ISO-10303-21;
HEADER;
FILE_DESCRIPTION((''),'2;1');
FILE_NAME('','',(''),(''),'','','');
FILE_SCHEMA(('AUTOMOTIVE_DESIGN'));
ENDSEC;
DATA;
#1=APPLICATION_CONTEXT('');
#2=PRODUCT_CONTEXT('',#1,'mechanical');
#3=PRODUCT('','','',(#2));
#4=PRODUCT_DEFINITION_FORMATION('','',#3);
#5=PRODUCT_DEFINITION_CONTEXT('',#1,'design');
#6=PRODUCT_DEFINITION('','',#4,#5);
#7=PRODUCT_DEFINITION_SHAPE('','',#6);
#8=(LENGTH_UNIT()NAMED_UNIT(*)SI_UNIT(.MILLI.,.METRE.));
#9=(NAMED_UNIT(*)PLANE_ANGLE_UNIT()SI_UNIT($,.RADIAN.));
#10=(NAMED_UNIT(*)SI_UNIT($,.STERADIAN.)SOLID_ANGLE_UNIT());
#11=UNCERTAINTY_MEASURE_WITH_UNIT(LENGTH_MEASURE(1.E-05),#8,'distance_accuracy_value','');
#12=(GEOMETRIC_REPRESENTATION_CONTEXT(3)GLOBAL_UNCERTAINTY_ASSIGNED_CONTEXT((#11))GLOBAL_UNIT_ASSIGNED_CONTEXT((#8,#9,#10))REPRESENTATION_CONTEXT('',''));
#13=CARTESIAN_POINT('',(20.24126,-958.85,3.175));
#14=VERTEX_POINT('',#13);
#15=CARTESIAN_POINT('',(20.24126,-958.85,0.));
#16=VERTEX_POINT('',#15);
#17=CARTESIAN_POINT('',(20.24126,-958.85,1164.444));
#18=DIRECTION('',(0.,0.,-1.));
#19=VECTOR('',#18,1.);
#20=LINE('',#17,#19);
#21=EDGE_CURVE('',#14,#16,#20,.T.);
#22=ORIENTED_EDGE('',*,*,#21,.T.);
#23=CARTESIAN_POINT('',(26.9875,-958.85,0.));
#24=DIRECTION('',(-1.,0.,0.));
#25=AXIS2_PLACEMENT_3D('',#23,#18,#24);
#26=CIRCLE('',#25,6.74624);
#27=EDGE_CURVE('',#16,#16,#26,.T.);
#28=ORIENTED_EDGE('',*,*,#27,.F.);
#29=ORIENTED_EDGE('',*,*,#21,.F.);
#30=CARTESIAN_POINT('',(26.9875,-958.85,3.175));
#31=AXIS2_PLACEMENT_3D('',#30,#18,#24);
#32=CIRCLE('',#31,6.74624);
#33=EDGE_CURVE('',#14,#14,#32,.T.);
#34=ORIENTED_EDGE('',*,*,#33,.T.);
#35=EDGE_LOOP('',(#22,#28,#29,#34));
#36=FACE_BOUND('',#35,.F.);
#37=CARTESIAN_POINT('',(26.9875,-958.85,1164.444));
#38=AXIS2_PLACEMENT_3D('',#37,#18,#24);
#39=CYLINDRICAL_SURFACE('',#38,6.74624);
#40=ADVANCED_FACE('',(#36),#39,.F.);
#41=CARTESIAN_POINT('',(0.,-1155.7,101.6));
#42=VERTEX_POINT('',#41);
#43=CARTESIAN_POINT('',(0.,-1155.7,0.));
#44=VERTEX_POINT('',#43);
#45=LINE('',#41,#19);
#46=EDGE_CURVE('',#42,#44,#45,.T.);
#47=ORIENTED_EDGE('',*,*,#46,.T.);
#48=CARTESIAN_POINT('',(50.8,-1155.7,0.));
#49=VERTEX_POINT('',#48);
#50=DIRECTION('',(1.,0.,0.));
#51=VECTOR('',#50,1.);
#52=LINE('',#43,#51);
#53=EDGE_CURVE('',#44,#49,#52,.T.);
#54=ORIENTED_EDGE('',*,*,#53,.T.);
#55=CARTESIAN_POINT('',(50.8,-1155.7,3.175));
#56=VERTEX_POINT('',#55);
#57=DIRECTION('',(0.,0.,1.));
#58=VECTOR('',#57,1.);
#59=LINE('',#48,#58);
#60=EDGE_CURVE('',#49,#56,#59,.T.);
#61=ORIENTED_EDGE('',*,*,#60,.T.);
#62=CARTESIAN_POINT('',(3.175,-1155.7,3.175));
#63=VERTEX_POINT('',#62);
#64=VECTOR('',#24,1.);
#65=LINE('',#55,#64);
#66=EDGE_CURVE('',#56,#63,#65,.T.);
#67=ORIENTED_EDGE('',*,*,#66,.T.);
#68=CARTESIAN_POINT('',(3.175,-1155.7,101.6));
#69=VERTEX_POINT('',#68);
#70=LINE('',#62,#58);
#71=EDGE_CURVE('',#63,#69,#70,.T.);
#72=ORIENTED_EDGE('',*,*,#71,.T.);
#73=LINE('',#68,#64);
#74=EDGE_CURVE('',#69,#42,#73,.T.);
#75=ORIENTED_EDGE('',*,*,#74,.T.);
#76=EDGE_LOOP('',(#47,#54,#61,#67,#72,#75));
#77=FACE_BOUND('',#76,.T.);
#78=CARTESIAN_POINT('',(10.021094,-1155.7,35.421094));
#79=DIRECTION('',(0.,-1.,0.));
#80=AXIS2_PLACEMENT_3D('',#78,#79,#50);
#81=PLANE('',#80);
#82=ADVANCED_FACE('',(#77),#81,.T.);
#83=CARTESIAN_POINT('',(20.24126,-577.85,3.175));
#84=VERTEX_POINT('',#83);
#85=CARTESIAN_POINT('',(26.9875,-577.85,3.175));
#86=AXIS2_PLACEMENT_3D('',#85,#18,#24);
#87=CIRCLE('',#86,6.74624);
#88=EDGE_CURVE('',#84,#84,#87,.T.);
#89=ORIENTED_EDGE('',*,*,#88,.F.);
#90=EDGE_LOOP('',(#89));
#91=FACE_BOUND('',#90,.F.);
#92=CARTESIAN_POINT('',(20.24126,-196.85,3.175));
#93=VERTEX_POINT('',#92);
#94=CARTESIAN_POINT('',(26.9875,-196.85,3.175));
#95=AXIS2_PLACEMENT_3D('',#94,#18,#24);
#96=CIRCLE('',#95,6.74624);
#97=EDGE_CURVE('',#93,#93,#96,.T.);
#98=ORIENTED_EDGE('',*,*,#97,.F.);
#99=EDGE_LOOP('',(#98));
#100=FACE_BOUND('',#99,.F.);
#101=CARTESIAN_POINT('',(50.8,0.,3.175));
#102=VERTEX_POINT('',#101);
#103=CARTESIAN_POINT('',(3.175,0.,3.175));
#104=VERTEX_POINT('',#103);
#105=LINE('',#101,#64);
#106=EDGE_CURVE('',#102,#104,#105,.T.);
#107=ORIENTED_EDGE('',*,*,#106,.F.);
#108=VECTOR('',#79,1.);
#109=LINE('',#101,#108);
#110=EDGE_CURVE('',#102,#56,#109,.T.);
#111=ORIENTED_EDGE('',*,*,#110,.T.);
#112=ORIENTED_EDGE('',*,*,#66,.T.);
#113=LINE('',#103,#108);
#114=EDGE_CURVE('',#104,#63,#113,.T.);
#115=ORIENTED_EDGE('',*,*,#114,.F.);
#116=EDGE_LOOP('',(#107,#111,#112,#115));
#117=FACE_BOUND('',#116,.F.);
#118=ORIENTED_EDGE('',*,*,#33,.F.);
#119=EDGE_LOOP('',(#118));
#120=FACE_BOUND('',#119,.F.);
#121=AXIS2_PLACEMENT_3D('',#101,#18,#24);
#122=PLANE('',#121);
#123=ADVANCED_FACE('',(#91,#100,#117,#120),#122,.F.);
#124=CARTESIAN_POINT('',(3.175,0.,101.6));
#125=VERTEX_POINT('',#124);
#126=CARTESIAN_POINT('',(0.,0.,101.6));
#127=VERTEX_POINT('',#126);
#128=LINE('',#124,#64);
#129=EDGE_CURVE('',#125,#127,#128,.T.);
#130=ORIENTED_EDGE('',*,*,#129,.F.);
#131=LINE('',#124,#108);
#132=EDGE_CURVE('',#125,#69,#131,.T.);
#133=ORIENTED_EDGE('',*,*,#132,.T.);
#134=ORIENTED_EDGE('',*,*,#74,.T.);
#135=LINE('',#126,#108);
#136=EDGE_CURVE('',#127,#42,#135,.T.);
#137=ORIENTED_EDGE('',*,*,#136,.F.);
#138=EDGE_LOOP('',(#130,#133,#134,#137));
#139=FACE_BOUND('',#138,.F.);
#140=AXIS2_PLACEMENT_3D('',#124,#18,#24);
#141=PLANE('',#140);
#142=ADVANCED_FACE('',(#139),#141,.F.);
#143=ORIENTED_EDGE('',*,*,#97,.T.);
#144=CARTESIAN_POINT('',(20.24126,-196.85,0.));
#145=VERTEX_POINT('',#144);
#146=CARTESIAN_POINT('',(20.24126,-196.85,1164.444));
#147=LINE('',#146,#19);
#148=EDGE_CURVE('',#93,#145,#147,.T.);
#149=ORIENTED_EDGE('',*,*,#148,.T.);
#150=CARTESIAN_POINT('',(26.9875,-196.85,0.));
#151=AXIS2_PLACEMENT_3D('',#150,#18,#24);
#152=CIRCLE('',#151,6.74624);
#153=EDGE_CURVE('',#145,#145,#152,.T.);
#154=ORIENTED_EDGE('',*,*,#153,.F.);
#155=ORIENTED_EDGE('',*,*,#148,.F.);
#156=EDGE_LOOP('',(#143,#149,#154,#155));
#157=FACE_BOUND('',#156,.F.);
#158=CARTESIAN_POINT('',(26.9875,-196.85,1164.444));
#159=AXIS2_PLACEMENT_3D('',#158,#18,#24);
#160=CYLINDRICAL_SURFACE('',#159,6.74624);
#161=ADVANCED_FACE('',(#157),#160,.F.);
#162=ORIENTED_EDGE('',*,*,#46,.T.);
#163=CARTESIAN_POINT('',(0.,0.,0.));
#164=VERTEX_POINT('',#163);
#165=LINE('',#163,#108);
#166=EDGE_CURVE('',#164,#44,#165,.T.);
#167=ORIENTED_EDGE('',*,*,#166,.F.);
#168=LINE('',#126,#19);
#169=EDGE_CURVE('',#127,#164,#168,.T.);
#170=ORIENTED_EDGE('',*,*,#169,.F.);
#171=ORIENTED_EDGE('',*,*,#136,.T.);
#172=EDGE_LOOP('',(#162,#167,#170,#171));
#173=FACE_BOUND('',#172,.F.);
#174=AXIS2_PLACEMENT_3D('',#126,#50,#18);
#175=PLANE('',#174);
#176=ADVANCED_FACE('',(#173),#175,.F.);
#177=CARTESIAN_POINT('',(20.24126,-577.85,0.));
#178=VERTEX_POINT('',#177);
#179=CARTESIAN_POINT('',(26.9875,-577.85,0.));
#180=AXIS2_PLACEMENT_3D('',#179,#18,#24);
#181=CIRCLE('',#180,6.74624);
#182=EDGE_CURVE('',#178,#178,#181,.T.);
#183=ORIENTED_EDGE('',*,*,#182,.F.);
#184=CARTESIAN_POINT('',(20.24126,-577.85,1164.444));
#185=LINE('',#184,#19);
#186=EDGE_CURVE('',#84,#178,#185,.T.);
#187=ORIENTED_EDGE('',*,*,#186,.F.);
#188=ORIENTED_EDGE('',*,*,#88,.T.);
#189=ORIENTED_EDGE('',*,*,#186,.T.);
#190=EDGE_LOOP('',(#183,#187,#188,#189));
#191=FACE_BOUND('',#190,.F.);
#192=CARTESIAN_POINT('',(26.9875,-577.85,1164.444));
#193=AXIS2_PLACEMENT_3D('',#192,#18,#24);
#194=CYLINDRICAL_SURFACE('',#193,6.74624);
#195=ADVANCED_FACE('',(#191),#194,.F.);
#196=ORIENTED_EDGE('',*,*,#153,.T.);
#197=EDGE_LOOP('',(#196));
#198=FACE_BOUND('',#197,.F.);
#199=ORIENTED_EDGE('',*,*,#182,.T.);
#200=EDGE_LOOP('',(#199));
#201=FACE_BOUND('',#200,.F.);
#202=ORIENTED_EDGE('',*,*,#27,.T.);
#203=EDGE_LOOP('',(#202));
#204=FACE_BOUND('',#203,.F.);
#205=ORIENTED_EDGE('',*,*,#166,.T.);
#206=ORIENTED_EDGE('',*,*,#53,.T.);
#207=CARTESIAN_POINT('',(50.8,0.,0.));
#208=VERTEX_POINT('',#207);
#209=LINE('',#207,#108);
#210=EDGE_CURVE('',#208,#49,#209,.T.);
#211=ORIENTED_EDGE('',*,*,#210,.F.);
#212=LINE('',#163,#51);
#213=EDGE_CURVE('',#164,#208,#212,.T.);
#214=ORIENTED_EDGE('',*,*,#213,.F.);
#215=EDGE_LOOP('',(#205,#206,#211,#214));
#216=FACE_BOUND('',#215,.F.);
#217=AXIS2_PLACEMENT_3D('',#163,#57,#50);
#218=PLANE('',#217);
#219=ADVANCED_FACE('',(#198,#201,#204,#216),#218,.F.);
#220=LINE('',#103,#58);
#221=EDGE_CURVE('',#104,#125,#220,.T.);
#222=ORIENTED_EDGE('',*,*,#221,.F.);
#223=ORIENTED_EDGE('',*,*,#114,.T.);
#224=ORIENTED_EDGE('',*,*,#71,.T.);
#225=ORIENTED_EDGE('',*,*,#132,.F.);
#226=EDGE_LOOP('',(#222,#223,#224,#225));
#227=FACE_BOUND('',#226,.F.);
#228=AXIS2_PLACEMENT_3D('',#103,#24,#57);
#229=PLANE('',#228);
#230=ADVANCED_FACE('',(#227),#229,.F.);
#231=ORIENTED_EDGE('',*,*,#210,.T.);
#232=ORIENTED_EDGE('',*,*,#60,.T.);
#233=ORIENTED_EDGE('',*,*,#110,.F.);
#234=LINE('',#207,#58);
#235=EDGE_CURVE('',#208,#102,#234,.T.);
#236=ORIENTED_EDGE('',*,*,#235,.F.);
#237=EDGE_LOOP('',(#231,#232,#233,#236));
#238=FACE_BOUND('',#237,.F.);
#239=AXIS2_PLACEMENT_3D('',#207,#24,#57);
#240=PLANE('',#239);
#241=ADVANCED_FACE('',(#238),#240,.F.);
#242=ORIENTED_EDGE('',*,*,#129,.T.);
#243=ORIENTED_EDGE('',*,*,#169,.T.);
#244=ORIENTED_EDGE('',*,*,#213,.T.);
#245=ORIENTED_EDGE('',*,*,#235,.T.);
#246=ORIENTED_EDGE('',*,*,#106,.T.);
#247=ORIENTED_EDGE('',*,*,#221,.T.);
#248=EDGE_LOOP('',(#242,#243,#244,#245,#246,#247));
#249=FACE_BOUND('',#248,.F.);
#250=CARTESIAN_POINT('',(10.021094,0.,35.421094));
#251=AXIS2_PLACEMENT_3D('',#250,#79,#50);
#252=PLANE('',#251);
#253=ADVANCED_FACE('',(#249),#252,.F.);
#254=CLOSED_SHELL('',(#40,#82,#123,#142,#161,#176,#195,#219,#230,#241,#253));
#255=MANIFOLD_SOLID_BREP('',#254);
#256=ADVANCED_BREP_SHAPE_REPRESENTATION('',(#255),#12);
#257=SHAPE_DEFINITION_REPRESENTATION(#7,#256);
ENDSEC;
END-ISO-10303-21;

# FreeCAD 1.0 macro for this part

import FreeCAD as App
import Part
import Sketcher
from FreeCAD import Vector
Q = App.Units.Quantity

doc = App.newDocument("Part")
params = doc.addObject("Spreadsheet::Sheet", "Params")
for row, (alias, value) in enumerate([
    ("sketch1_width", "2 in"),
    ("sketch1_height", "4 in"),
    ("sketch1_width2", "1.875 in"),
    ("pad1_length", "45.5 in"),
    ("hole_diameter", "0.5312 in"),
], start=1):
    params.set(f"A{row}", alias)
    params.set(f"B{row}", "=" + value)
    params.setAlias(f"B{row}", alias)

body = doc.addObject("PartDesign::Body", "Body")

# Sketch on XZ plane
sketch1 = body.newObject("Sketcher::SketchObject", "Sketch")
sketch1.AttachmentSupport = (doc.getObject("XZ_Plane"), [""])
sketch1.MapMode = "FlatFace"
sketch1.addGeometry(Part.LineSegment(Vector(0, 101.6, 0), Vector(0, 0, 0)), False)
sketch1.addGeometry(Part.LineSegment(Vector(0, 0, 0), Vector(50.8, 0, 0)), False)
sketch1.addGeometry(Part.LineSegment(Vector(50.8, 0, 0), Vector(50.8, 3.2, 0)), False)
sketch1.addGeometry(Part.LineSegment(Vector(50.8, 3.2, 0), Vector(3.2, 3.2, 0)), False)
sketch1.addGeometry(Part.LineSegment(Vector(3.2, 3.2, 0), Vector(3.2, 101.6, 0)), False)
sketch1.addGeometry(Part.LineSegment(Vector(3.2, 101.6, 0), Vector(0, 101.6, 0)), False)
sketch1.addConstraint(Sketcher.Constraint("Coincident", 0, 2, 1, 1))
sketch1.addConstraint(Sketcher.Constraint("Coincident", 1, 2, 2, 1))
sketch1.addConstraint(Sketcher.Constraint("Coincident", 2, 2, 3, 1))
sketch1.addConstraint(Sketcher.Constraint("Coincident", 3, 2, 4, 1))
sketch1.addConstraint(Sketcher.Constraint("Coincident", 4, 2, 5, 1))
sketch1.addConstraint(Sketcher.Constraint("Coincident", 5, 2, 0, 1))
sketch1.addConstraint(Sketcher.Constraint("Vertical", 0))
sketch1.addConstraint(Sketcher.Constraint("Horizontal", 1))
sketch1.addConstraint(Sketcher.Constraint("Vertical", 2))
sketch1.addConstraint(Sketcher.Constraint("Horizontal", 3))
sketch1.addConstraint(Sketcher.Constraint("Vertical", 4))
sketch1.addConstraint(Sketcher.Constraint("Horizontal", 5))
sketch1.addConstraint(Sketcher.Constraint("Coincident", 0, 2, -1, 1))
sketch1.addConstraint(Sketcher.Constraint("Equal", 5, 2))
sketch1.addConstraint(Sketcher.Constraint("DistanceX", 1, 1, 1, 2, Q("2 in")))
sketch1.addConstraint(Sketcher.Constraint("DistanceY", 0, 2, 0, 1, Q("4 in")))
sketch1.addConstraint(Sketcher.Constraint("DistanceX", 3, 2, 3, 1, Q("1.875 in")))
sketch1.setExpression("Constraints[14]", "Params.sketch1_width")
sketch1.setExpression("Constraints[15]", "Params.sketch1_height")
sketch1.setExpression("Constraints[16]", "Params.sketch1_width2")
pad1 = body.newObject("PartDesign::Pad", "Pad")
pad1.Profile = sketch1
pad1.setExpression("Length", "Params.pad1_length")

# Sketch on XY plane
sketch2 = body.newObject("Sketcher::SketchObject", "Sketch001")
sketch2.AttachmentSupport = (doc.getObject("XY_Plane"), [""])
sketch2.MapMode = "FlatFace"
sketch2.AttachmentOffset = App.Placement(Vector(0, 0, 0.125 * 25.4), App.Rotation())
sketch2.addGeometry(Part.Circle(Vector(27, -578, 0), Vector(0, 0, 1), 7), False)
sketch2.addGeometry(Part.Circle(Vector(27, -197, 0), Vector(0, 0, 1), 7), False)
sketch2.addGeometry(Part.Circle(Vector(27, -959, 0), Vector(0, 0, 1), 7), False)
sketch2.addConstraint(Sketcher.Constraint("Equal", 0, 1))
sketch2.addConstraint(Sketcher.Constraint("Equal", 1, 2))
sketch2.addConstraint(Sketcher.Constraint("Vertical", 0, 3, 1, 3))
sketch2.addConstraint(Sketcher.Constraint("Vertical", 1, 3, 2, 3))
sketch2.addConstraint(Sketcher.Constraint("DistanceY", 0, 3, 1, 3, Q("15 in")))
sketch2.addConstraint(Sketcher.Constraint("DistanceY", 2, 3, 0, 3, Q("15 in")))
sketch2.addConstraint(Sketcher.Constraint("Diameter", 0, Q("0.5312 in")))
sketch2.addConstraint(Sketcher.Constraint("DistanceY", 0, 3, -1, 1, Q("22.75 in")))
sketch2.addConstraint(Sketcher.Constraint("DistanceX", -1, 1, 0, 3, Q("1.0625 in")))
doc.recompute()
hole = body.newObject("PartDesign::Hole", "Hole")
hole.Profile = sketch2
hole.ThreadType = "None"
hole.setExpression("Diameter", "Params.hole_diameter")
hole.DepthType = "ThroughAll"

doc.recompute()
